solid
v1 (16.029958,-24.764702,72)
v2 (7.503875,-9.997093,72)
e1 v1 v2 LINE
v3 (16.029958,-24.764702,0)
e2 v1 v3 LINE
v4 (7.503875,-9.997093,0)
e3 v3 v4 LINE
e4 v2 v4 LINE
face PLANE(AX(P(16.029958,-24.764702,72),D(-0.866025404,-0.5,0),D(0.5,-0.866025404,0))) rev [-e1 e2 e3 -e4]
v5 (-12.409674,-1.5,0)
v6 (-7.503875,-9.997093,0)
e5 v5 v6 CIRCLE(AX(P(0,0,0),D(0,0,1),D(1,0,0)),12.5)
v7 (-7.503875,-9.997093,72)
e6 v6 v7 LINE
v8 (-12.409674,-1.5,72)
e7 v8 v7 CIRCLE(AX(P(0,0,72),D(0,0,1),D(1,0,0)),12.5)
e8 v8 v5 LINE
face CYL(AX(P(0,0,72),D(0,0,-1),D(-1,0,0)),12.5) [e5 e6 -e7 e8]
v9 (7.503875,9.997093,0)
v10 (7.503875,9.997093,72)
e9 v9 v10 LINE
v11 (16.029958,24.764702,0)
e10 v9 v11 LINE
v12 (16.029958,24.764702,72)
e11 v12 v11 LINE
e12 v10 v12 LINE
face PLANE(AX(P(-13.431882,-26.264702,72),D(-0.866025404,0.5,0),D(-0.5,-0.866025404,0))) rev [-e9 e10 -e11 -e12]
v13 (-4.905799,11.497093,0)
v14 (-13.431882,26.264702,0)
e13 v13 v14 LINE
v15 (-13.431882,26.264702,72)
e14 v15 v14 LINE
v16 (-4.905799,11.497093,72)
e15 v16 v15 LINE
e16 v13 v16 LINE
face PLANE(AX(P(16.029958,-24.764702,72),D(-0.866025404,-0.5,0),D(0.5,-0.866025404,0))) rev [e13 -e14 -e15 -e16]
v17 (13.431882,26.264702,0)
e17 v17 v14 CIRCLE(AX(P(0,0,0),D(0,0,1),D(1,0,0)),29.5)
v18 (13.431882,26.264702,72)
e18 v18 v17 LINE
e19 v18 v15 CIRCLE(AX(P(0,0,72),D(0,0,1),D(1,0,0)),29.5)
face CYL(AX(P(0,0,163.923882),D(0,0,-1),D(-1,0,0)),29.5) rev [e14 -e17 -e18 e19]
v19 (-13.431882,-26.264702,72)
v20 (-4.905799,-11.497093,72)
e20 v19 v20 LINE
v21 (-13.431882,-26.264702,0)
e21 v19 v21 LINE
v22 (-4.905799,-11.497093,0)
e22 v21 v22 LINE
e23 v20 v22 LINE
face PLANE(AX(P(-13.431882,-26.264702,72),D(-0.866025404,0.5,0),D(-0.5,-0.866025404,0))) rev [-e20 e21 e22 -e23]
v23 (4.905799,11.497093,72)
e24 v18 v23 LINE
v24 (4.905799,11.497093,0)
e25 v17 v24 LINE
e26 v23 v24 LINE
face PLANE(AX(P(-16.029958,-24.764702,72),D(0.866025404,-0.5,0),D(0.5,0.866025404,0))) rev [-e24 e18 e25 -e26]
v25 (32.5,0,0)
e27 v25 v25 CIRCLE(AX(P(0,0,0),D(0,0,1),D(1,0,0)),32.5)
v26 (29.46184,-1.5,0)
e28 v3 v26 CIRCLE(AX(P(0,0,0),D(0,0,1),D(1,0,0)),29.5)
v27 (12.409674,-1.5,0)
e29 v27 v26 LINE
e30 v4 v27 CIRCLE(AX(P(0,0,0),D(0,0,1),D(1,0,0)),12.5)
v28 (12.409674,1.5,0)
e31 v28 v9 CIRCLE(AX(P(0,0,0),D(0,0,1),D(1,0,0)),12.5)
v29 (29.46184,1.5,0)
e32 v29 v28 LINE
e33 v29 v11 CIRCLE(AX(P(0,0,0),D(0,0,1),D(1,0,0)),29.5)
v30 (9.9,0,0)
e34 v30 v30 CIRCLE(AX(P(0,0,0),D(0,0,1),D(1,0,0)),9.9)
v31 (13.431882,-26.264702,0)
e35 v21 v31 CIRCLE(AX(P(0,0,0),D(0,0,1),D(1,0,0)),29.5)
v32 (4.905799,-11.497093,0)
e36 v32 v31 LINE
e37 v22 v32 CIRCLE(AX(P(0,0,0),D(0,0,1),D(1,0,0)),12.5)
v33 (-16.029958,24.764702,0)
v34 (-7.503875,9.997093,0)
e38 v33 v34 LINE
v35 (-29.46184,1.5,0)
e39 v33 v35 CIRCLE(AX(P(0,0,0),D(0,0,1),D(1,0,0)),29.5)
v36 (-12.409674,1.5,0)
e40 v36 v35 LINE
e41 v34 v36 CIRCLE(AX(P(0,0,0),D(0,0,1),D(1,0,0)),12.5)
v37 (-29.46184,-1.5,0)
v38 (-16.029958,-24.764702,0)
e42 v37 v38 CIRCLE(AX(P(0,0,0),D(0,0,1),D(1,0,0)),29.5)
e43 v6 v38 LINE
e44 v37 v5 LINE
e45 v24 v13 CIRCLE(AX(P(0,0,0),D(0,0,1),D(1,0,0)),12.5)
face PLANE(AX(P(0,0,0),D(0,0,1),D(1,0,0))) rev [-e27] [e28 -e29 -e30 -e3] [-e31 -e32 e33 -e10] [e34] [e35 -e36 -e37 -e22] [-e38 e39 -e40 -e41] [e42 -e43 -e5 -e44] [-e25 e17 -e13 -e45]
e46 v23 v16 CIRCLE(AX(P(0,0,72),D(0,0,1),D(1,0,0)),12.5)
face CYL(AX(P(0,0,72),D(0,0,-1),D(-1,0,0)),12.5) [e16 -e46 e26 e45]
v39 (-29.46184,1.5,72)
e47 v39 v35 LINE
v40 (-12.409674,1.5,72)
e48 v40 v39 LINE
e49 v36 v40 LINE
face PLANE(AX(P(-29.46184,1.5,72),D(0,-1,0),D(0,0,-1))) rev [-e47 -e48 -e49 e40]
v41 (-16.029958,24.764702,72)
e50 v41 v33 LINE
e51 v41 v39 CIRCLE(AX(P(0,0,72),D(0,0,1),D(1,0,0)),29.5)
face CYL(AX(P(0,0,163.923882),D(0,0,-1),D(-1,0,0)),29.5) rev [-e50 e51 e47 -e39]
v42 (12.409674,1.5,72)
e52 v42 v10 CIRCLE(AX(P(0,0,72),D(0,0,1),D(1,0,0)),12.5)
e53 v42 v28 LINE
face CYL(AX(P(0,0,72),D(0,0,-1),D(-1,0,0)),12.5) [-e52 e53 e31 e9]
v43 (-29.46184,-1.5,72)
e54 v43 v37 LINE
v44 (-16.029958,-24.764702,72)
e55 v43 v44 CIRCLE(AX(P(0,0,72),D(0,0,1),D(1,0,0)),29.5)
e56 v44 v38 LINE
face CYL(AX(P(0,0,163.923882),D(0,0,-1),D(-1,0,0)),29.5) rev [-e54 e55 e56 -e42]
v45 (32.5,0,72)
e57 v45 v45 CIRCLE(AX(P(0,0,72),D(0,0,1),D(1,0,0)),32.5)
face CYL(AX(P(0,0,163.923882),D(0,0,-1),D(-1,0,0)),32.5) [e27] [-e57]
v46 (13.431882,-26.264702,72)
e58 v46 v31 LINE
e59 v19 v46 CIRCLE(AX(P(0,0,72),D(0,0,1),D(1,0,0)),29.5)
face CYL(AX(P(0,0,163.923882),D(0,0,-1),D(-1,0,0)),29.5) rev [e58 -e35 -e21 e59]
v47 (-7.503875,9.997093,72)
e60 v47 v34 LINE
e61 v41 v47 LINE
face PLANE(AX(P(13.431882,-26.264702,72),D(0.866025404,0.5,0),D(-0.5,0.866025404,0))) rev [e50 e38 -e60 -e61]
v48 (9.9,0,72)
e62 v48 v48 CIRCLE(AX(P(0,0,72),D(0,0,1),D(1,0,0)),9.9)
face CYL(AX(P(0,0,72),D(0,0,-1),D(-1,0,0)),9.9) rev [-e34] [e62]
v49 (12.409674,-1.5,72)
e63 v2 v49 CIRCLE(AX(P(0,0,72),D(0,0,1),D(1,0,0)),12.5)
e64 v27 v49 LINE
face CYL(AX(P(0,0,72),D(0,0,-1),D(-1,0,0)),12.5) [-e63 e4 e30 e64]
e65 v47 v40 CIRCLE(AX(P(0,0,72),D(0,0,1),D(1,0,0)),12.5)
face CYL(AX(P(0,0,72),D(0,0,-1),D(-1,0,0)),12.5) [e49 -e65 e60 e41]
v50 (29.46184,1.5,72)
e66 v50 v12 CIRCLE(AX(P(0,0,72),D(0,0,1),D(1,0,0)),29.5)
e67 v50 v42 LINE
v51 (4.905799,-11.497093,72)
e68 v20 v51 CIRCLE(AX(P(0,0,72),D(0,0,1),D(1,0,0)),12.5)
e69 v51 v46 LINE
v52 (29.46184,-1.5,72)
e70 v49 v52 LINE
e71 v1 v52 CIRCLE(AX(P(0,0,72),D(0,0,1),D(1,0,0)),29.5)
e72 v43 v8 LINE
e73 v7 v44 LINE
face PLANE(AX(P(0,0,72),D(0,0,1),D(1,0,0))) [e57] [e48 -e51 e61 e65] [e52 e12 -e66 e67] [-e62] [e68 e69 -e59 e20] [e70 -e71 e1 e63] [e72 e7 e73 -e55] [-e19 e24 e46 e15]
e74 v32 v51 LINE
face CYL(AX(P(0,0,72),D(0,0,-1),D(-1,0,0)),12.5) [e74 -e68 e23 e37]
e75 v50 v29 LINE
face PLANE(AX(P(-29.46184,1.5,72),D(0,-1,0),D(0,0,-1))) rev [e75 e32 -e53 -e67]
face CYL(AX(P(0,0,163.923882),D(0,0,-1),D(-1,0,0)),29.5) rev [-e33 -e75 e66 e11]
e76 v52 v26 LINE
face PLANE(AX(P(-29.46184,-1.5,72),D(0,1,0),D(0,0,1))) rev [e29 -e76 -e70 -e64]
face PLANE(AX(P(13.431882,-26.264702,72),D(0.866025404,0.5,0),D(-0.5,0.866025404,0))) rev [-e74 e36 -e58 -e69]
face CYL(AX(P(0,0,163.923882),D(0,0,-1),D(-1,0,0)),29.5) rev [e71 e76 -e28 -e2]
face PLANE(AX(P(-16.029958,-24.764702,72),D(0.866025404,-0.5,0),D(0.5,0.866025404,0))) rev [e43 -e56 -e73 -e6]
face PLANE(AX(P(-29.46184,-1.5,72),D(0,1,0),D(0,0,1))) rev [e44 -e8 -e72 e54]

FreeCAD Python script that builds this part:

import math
import FreeCAD as App
import Part
import Sketcher
from FreeCAD import Vector

doc = App.newDocument("Part")
body = doc.addObject("PartDesign::Body", "Body")

# Sketch on XY plane
sketch1 = body.newObject("Sketcher::SketchObject", "Sketch")
sketch1.AttachmentSupport = (doc.getObject("XY_Plane"), [""])
sketch1.MapMode = "FlatFace"
sketch1.addGeometry(Part.Circle(Vector(0, 0, 0), Vector(0, 0, 1), 32), False)
sketch1.addGeometry(Part.Circle(Vector(0, 0, 0), Vector(0, 0, 1), 30), False)
sketch1.addConstraint(Sketcher.Constraint("Coincident", 0, 3, -1, 1))
sketch1.addConstraint(Sketcher.Constraint("Coincident", 1, 3, -1, 1))
sketch1.addConstraint(Sketcher.Constraint("Diameter", 0, 65.0))
sketch1.addConstraint(Sketcher.Constraint("Diameter", 1, 59.0))
pad1 = body.newObject("PartDesign::Pad", "Pad")
pad1.Profile = sketch1
pad1.Length = 72

# Sketch on XY plane
sketch2 = body.newObject("Sketcher::SketchObject", "Sketch001")
sketch2.AttachmentSupport = (doc.getObject("XY_Plane"), [""])
sketch2.MapMode = "FlatFace"
sketch2.addGeometry(Part.LineSegment(Vector(-29.5, -1.5, 0), Vector(29.5, -1.5, 0)), False)
sketch2.addGeometry(Part.ArcOfCircle(Part.Circle(Vector(0, 0, 0), Vector(0, 0, 1), 29.5), math.radians(-2.91), math.radians(2.91)), False)
sketch2.addGeometry(Part.LineSegment(Vector(29.5, 1.5, 0), Vector(-29.5, 1.5, 0)), False)
sketch2.addGeometry(Part.ArcOfCircle(Part.Circle(Vector(0, 0, 0), Vector(0, 0, 1), 29.5), math.radians(177.09), math.radians(182.91)), False)
sketch2.addConstraint(Sketcher.Constraint("Coincident", 0, 2, 1, 1))
sketch2.addConstraint(Sketcher.Constraint("Coincident", 1, 2, 2, 1))
sketch2.addConstraint(Sketcher.Constraint("Coincident", 2, 2, 3, 1))
sketch2.addConstraint(Sketcher.Constraint("Coincident", 3, 2, 0, 1))
sketch2.addConstraint(Sketcher.Constraint("Horizontal", 0))
sketch2.addConstraint(Sketcher.Constraint("Horizontal", 2))
sketch2.addConstraint(Sketcher.Constraint("Coincident", 1, 3, -1, 1))
sketch2.addConstraint(Sketcher.Constraint("Coincident", 3, 3, -1, 1))
sketch2.addConstraint(Sketcher.Constraint("Equal", 1, 3))
sketch2.addConstraint(Sketcher.Constraint("Vertical", 0, 2, 1, 2))
sketch2.addConstraint(Sketcher.Constraint("Radius", 1, 29.5))
sketch2.addConstraint(Sketcher.Constraint("DistanceY", 0, 2, 1, 2, 3.0))
pad2 = body.newObject("PartDesign::Pad", "Pad001")
pad2.Profile = sketch2
pad2.Length = 72
doc.recompute()

polarpattern = body.newObject("PartDesign::PolarPattern", "PolarPattern")
polarpattern.Originals = [pad2]
polarpattern.Axis = (doc.getObject("Z_Axis"), [""])
polarpattern.Angle = 120
polarpattern.Occurrences = 3
body.Tip = polarpattern

# Sketch on XY plane
sketch3 = body.newObject("Sketcher::SketchObject", "Sketch002")
sketch3.AttachmentSupport = (doc.getObject("XY_Plane"), [""])
sketch3.MapMode = "FlatFace"
sketch3.addGeometry(Part.Circle(Vector(0, 0, 0), Vector(0, 0, 1), 12), False)
sketch3.addConstraint(Sketcher.Constraint("Coincident", 0, 3, -1, 1))
sketch3.addConstraint(Sketcher.Constraint("Diameter", 0, 25.0))
pad3 = body.newObject("PartDesign::Pad", "Pad002")
pad3.Profile = sketch3
pad3.Type = "UpToLast"

# Sketch on XY plane
sketch4 = body.newObject("Sketcher::SketchObject", "Sketch003")
sketch4.AttachmentSupport = (doc.getObject("XY_Plane"), [""])
sketch4.MapMode = "FlatFace"
sketch4.addGeometry(Part.Circle(Vector(0, 0, 0), Vector(0, 0, 1), 10), False)
sketch4.addConstraint(Sketcher.Constraint("Coincident", 0, 3, -1, 1))
sketch4.addConstraint(Sketcher.Constraint("Diameter", 0, 19.8))
pocket1 = body.newObject("PartDesign::Pocket", "Pocket")
pocket1.Profile = sketch4
pocket1.Type = "ThroughAll"
pocket1.Reversed = True

doc.recompute()
